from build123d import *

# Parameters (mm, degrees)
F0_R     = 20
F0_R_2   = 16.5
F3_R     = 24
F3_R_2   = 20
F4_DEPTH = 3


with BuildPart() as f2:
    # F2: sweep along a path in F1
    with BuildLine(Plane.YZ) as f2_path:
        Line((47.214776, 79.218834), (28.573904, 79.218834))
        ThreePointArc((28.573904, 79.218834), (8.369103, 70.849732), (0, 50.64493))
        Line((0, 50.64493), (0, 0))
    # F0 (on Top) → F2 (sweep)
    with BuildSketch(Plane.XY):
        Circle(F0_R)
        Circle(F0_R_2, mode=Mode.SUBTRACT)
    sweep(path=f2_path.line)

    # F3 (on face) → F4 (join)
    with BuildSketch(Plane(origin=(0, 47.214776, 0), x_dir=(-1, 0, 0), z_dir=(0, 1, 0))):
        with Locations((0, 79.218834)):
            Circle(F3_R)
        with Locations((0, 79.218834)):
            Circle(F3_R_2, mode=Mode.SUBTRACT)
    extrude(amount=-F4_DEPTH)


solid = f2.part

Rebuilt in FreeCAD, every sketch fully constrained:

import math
import FreeCAD as App
import Part
import Sketcher
Q = App.Units.Quantity

doc = App.newDocument("Part")
body = doc.addObject("PartDesign::Body", "Body")

sketch1 = doc.addObject("Sketcher::SketchObject", "Sketch")
body.addObject(sketch1)
sketch1.AttachmentSupport = (doc.XY_Plane, [""])
sketch1.MapMode = "FlatFace"
sketch1.addGeometry(Part.Circle(App.Vector(0, 0, 0), App.Vector(0, 0, 1), 20), False)
sketch1.addGeometry(Part.Circle(App.Vector(0, 0, 0), App.Vector(0, 0, 1), 16.5), False)
sketch1.addConstraint(Sketcher.Constraint("Coincident", 0, 3, -1, 1))
sketch1.addConstraint(Sketcher.Constraint("Coincident", 1, 3, -1, 1))
sketch1.addConstraint(Sketcher.Constraint("Diameter", 0, Q("40 mm")))
sketch1.addConstraint(Sketcher.Constraint("Diameter", 1, Q("33 mm")))

sketch2 = doc.addObject("Sketcher::SketchObject", "Sketch001")
body.addObject(sketch2)
sketch2.AttachmentSupport = (doc.YZ_Plane, [""])
sketch2.MapMode = "FlatFace"
sketch2.addGeometry(Part.LineSegment(App.Vector(47.214776, 79.218834, 0), App.Vector(28.573904, 79.218834, 0)), False)
sketch2.addGeometry(Part.ArcOfCircle(Part.Circle(App.Vector(28.573903, 50.644931, 0), App.Vector(0, 0, 1), 28.573903), math.radians(89.999999), math.radians(180.000001)), False)
sketch2.addGeometry(Part.LineSegment(App.Vector(0, 50.64493, 0), App.Vector(0, 0, 0)), False)
sketch2.addConstraint(Sketcher.Constraint("Tangent", 0, 2, 1, 1))
sketch2.addConstraint(Sketcher.Constraint("Tangent", 1, 2, 2, 1))
sketch2.addConstraint(Sketcher.Constraint("Horizontal", 0))
sketch2.addConstraint(Sketcher.Constraint("Vertical", 2))
sketch2.addConstraint(Sketcher.Constraint("Coincident", 2, 2, -1, 1))
sketch2.addConstraint(Sketcher.Constraint("Radius", 1, Q("28.573903 mm")))
sketch2.addConstraint(Sketcher.Constraint("DistanceY", 2, 2, 2, 1, Q("50.64493 mm")))
sketch2.addConstraint(Sketcher.Constraint("DistanceX", 0, 2, 0, 1, Q("18.640872 mm")))
doc.recompute()

additivepipe = doc.addObject("PartDesign::AdditivePipe", "AdditivePipe")
body.addObject(additivepipe)
additivepipe.Profile = sketch1
additivepipe.Spine = (sketch2, ["Edge1", "Edge2", "Edge3"])

sketch3 = doc.addObject("Sketcher::SketchObject", "Sketch002")
body.addObject(sketch3)
sketch3.AttachmentSupport = (doc.XZ_Plane, [""])
sketch3.MapMode = "FlatFace"
sketch3.AttachmentOffset = App.Placement(App.Vector(0, 0, -47.214776), App.Rotation())
sketch3.addGeometry(Part.Circle(App.Vector(0, 79.218834, 0), App.Vector(0, 0, 1), 24), False)
sketch3.addGeometry(Part.Circle(App.Vector(0, 79.218834, 0), App.Vector(0, 0, 1), 20), False)
sketch3.addConstraint(Sketcher.Constraint("Coincident", 1, 3, 0, 3))
sketch3.addConstraint(Sketcher.Constraint("PointOnObject", 0, 3, -2))
sketch3.addConstraint(Sketcher.Constraint("Diameter", 0, Q("48 mm")))
sketch3.addConstraint(Sketcher.Constraint("Diameter", 1, Q("40 mm")))
sketch3.addConstraint(Sketcher.Constraint("DistanceY", -1, 1, 0, 3, Q("79.218834 mm")))
pad1 = doc.addObject("PartDesign::Pad", "Pad")
body.addObject(pad1)
pad1.Profile = sketch3
pad1.Length = 3

doc.recompute()
